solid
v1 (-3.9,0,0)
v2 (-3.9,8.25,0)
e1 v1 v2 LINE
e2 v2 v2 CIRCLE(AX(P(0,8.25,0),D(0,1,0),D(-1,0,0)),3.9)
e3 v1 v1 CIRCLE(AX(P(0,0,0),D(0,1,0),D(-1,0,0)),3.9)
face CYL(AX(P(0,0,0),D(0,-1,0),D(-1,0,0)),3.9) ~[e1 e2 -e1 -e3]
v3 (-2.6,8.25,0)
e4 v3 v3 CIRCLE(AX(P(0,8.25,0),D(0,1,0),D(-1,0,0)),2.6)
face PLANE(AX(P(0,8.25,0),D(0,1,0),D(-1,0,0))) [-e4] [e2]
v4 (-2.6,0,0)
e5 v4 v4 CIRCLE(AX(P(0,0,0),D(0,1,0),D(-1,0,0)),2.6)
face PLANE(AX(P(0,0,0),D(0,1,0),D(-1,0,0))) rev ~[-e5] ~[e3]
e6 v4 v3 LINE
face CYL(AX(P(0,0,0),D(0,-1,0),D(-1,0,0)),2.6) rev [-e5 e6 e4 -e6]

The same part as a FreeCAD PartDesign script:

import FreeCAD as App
import Part
import Sketcher

V = App.Vector

doc = App.newDocument("Part")
body = doc.addObject("PartDesign::Body", "Body")

sketch1 = body.newObject("Sketcher::SketchObject", "Sketch")
sketch1.AttachmentSupport = (doc.getObject("XZ_Plane"), [""])
sketch1.MapMode = "FlatFace"
sketch1.addGeometry([
    Part.Circle(V(0, 0, 0), V(0, 0, 1), 3.9),
    Part.Circle(V(0, 0, 0), V(0, 0, 1), 2.6),
], False)
sketch1.addConstraint([
    Sketcher.Constraint("Coincident", 0, 3, -1, 1),
    Sketcher.Constraint("Coincident", 1, 3, -1, 1),
    Sketcher.Constraint("Diameter", 0, 7.8),
    Sketcher.Constraint("Diameter", 1, 5.2),
])
pad1 = body.newObject("PartDesign::Pad", "Pad")
pad1.Profile = sketch1
pad1.Length = 8.25
pad1.Reversed = True

doc.recompute()
